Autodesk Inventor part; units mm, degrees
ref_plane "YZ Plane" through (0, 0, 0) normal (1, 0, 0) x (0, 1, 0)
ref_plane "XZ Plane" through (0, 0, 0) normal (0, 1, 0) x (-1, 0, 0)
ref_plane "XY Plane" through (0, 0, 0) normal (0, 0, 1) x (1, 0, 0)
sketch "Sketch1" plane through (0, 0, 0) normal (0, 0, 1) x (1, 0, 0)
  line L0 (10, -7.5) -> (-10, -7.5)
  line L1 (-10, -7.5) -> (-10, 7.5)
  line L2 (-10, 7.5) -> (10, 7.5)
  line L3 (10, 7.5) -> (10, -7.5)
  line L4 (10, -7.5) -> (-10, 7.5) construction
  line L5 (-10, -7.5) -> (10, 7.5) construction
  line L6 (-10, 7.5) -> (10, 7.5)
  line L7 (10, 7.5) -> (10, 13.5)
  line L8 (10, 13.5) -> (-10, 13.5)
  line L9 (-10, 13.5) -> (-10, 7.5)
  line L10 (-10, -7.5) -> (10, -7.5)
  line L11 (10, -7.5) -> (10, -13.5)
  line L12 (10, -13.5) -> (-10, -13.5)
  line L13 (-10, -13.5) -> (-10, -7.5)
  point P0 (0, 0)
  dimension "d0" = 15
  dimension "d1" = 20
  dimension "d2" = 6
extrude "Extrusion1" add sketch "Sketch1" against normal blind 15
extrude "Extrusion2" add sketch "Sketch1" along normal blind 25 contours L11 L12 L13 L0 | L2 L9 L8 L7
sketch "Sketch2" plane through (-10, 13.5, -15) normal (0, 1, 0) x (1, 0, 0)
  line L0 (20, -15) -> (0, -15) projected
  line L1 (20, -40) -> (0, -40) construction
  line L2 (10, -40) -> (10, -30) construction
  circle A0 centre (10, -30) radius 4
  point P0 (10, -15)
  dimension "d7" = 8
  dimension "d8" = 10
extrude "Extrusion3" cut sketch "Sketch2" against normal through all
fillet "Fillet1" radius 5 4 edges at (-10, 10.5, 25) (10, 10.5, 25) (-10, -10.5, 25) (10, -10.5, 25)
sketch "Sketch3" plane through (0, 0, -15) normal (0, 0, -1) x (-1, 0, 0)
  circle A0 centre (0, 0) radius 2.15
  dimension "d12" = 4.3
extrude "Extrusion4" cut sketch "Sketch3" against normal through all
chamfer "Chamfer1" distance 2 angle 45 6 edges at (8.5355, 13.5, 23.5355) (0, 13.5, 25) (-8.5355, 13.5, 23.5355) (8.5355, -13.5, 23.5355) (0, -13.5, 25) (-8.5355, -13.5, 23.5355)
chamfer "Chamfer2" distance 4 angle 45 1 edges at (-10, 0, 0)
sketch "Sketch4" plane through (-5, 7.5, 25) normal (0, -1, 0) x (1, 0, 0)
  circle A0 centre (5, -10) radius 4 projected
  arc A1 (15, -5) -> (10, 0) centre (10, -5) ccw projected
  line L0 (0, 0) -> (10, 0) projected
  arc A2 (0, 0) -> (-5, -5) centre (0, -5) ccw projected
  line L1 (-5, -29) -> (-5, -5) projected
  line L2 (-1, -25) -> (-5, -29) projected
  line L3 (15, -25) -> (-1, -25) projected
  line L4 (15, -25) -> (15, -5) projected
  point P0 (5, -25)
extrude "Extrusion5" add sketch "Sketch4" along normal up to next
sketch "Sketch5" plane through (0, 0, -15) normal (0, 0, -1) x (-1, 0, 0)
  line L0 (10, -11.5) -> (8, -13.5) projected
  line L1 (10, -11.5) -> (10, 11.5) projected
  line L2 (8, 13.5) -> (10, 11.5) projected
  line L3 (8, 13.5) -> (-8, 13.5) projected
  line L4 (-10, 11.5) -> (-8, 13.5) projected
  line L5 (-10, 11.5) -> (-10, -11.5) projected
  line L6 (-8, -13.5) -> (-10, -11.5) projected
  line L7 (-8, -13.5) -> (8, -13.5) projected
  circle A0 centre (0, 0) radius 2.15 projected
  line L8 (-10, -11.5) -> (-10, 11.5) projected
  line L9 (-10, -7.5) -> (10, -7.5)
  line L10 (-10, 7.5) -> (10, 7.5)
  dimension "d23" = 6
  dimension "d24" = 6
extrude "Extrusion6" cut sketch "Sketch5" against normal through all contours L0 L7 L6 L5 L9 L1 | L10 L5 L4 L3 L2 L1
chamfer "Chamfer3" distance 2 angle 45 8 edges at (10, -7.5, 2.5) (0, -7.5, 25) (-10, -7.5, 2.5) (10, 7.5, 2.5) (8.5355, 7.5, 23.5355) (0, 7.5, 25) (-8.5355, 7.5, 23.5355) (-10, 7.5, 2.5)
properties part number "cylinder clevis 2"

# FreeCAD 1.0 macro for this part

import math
import FreeCAD as App
import Part
import Sketcher
Q = App.Units.Quantity


def edges_at(feature, points):
    """Names of the edges that pass closest to the given points."""
    edges = feature.Shape.Edges
    near = lambda p: min(range(len(edges)), key=lambda i: edges[i].distToShape(Part.Vertex(*p))[0])
    return sorted({f"Edge{near(p) + 1}" for p in points})

doc = App.newDocument("Part")
params = doc.addObject("Spreadsheet::Sheet", "Params")
for row, (alias, value) in enumerate([
    ("sketch1_width", "20 mm"),
    ("sketch1_height", "27 mm"),
    ("pad1_length", "15 mm"),
    ("sketch2_width", "20 mm"),
    ("sketch2_height", "6 mm"),
    ("pad2_length", "25 mm"),
    ("sketch3_diameter", "8 mm"),
    ("fillet_radius", "5 mm"),
    ("sketch4_diameter", "4.3 mm"),
    ("chamfer_size", "2 mm"),
    ("chamfer2_size", "4 mm"),
    ("sketch5_diameter", "8 mm"),
    ("sketch5_radius", "5 mm"),
    ("sketch5_width", "10 mm"),
    ("sketch5_width2", "16 mm"),
    ("sketch5_height", "20 mm"),
    ("pad3_length", "15 mm"),
    ("sketch6_width", "20 mm"),
    ("sketch6_width2", "16 mm"),
    ("chamfer3_size", "2 mm"),
], start=1):
    params.set(f"A{row}", alias)
    params.set(f"B{row}", "=" + value)
    params.setAlias(f"B{row}", alias)

body = doc.addObject("PartDesign::Body", "Body")

sketch1 = body.newObject("Sketcher::SketchObject", "Sketch")
sketch1.AttachmentSupport = (doc.getObject("XY_Plane"), [""])
sketch1.MapMode = "FlatFace"
sketch1.addGeometry([
    Part.LineSegment(App.Vector(10, -14, 0), App.Vector(10, 14, 0)),
    Part.LineSegment(App.Vector(10, 14, 0), App.Vector(-10, 14, 0)),
    Part.LineSegment(App.Vector(-10, 14, 0), App.Vector(-10, -14, 0)),
    Part.LineSegment(App.Vector(-10, -14, 0), App.Vector(10, -14, 0)),
], False)
sketch1.addConstraint([
    Sketcher.Constraint("Coincident", 0, 2, 1, 1),
    Sketcher.Constraint("Coincident", 1, 2, 2, 1),
    Sketcher.Constraint("Coincident", 2, 2, 3, 1),
    Sketcher.Constraint("Coincident", 3, 2, 0, 1),
    Sketcher.Constraint("Vertical", 0),
    Sketcher.Constraint("Horizontal", 1),
    Sketcher.Constraint("Vertical", 2),
    Sketcher.Constraint("Horizontal", 3),
    Sketcher.Constraint("Symmetric", 0, 2, 2, 2, -1, 1),
    Sketcher.Constraint("DistanceX", 1, 2, 1, 1, Q("20 mm")),
    Sketcher.Constraint("DistanceY", 0, 1, 0, 2, Q("27 mm")),
])
sketch1.setExpression("Constraints[9]", "Params.sketch1_width")
sketch1.setExpression("Constraints[10]", "Params.sketch1_height")
pad1 = body.newObject("PartDesign::Pad", "Pad")
pad1.Profile = sketch1
pad1.setExpression("Length", "Params.pad1_length")
pad1.Reversed = True

sketch2 = body.newObject("Sketcher::SketchObject", "Sketch001")
sketch2.AttachmentSupport = (doc.getObject("XY_Plane"), [""])
sketch2.MapMode = "FlatFace"
sketch2.addGeometry([
    Part.LineSegment(App.Vector(10, -14, 0), App.Vector(10, -8, 0)),
    Part.LineSegment(App.Vector(10, -8, 0), App.Vector(-10, -8, 0)),
    Part.LineSegment(App.Vector(-10, -8, 0), App.Vector(-10, -14, 0)),
    Part.LineSegment(App.Vector(-10, -14, 0), App.Vector(10, -14, 0)),
    Part.LineSegment(App.Vector(-10, 8, 0), App.Vector(10, 8, 0)),
    Part.LineSegment(App.Vector(10, 8, 0), App.Vector(10, 14, 0)),
    Part.LineSegment(App.Vector(10, 14, 0), App.Vector(-10, 14, 0)),
    Part.LineSegment(App.Vector(-10, 14, 0), App.Vector(-10, 8, 0)),
], False)
sketch2.addConstraint([
    Sketcher.Constraint("Coincident", 0, 2, 1, 1),
    Sketcher.Constraint("Coincident", 1, 2, 2, 1),
    Sketcher.Constraint("Coincident", 2, 2, 3, 1),
    Sketcher.Constraint("Coincident", 3, 2, 0, 1),
    Sketcher.Constraint("Coincident", 4, 2, 5, 1),
    Sketcher.Constraint("Coincident", 5, 2, 6, 1),
    Sketcher.Constraint("Coincident", 6, 2, 7, 1),
    Sketcher.Constraint("Coincident", 7, 2, 4, 1),
    Sketcher.Constraint("Vertical", 0),
    Sketcher.Constraint("Horizontal", 1),
    Sketcher.Constraint("Vertical", 2),
    Sketcher.Constraint("Horizontal", 3),
    Sketcher.Constraint("Horizontal", 4),
    Sketcher.Constraint("Vertical", 5),
    Sketcher.Constraint("Horizontal", 6),
    Sketcher.Constraint("Vertical", 7),
    Sketcher.Constraint("Symmetric", 1, 2, 4, 2, -1, 1),
    Sketcher.Constraint("Symmetric", 3, 2, 6, 2, -1, 1),
    Sketcher.Constraint("Vertical", 3, 2, 4, 2),
    Sketcher.Constraint("DistanceX", 1, 2, 1, 1, Q("20 mm")),
    Sketcher.Constraint("DistanceY", 0, 1, 0, 2, Q("6 mm")),
    Sketcher.Constraint("DistanceY", 0, 2, 4, 2, Q("15 mm")),
])
sketch2.setExpression("Constraints[19]", "Params.sketch2_width")
sketch2.setExpression("Constraints[20]", "Params.sketch2_height")
pad2 = body.newObject("PartDesign::Pad", "Pad001")
pad2.Profile = sketch2
pad2.setExpression("Length", "Params.pad2_length")

sketch3 = body.newObject("Sketcher::SketchObject", "Sketch002")
sketch3.AttachmentSupport = (doc.getObject("XZ_Plane"), [""])
sketch3.MapMode = "FlatFace"
sketch3.AttachmentOffset = App.Placement(App.Vector(0, 0, -13.5), App.Rotation())
sketch3.addGeometry(Part.Circle(App.Vector(0, 15, 0), App.Vector(0, 0, 1), 4), False)
sketch3.addConstraint([
    Sketcher.Constraint("PointOnObject", 0, 3, -2),
    Sketcher.Constraint("Diameter", 0, Q("8 mm")),
    Sketcher.Constraint("DistanceY", -1, 1, 0, 3, Q("15 mm")),
])
sketch3.setExpression("Constraints[1]", "Params.sketch3_diameter")
pocket1 = body.newObject("PartDesign::Pocket", "Pocket")
pocket1.Profile = sketch3
pocket1.Type = "ThroughAll"
pocket1.Reversed = True
doc.recompute()

fillet = body.newObject("PartDesign::Fillet", "Fillet")
fillet.Base = (pocket1, edges_at(pocket1, [
    (-10, 10.5, 25),
    (10, 10.5, 25),
    (-10, -10.5, 25),
    (10, -10.5, 25),
]))
fillet.setExpression("Radius", "Params.fillet_radius")

sketch4 = body.newObject("Sketcher::SketchObject", "Sketch003")
sketch4.AttachmentSupport = (doc.getObject("XY_Plane"), [""])
sketch4.MapMode = "FlatFace"
sketch4.AttachmentOffset = App.Placement(App.Vector(0, 0, -15), App.Rotation())
sketch4.addGeometry(Part.Circle(App.Vector(0, 0, 0), App.Vector(0, 0, 1), 2.1), False)
sketch4.addConstraint([
    Sketcher.Constraint("Coincident", 0, 3, -1, 1),
    Sketcher.Constraint("Diameter", 0, Q("4.3 mm")),
])
sketch4.setExpression("Constraints[1]", "Params.sketch4_diameter")
pocket2 = body.newObject("PartDesign::Pocket", "Pocket001")
pocket2.Profile = sketch4
pocket2.Type = "ThroughAll"
pocket2.Reversed = True
doc.recompute()

chamfer = body.newObject("PartDesign::Chamfer", "Chamfer")
chamfer.Base = (pocket2, edges_at(pocket2, [
    (8.536, 13.5, 23.535),
    (0, 13.5, 25),
    (-8.536, 13.5, 23.535),
    (8.536, -13.5, 23.535),
    (0, -13.5, 25),
    (-8.536, -13.5, 23.535),
]))
chamfer.setExpression("Size", "Params.chamfer_size")
doc.recompute()

chamfer2 = body.newObject("PartDesign::Chamfer", "Chamfer001")
chamfer2.Base = (chamfer, edges_at(chamfer, [(-10, 0, 0)]))
chamfer2.setExpression("Size", "Params.chamfer2_size")

sketch5 = body.newObject("Sketcher::SketchObject", "Sketch004")
sketch5.AttachmentSupport = (doc.getObject("XZ_Plane"), [""])
sketch5.MapMode = "FlatFace"
sketch5.AttachmentOffset = App.Placement(App.Vector(0, 0, -7.5), App.Rotation())
sketch5.addGeometry([
    Part.LineSegment(App.Vector(10, 0, 0), App.Vector(10, 20, 0)),
    Part.ArcOfCircle(Part.Circle(App.Vector(5, 20, 0), App.Vector(0, 0, 1), 5), math.radians(0), math.radians(90)),
    Part.LineSegment(App.Vector(5, 25, 0), App.Vector(-5, 25, 0)),
    Part.ArcOfCircle(Part.Circle(App.Vector(-5, 20, 0), App.Vector(0, 0, 1), 5), math.radians(90), math.radians(180)),
    Part.LineSegment(App.Vector(-10, 20, 0), App.Vector(-10, -4, 0)),
    Part.LineSegment(App.Vector(-10, -4, 0), App.Vector(-6, 0, 0)),
    Part.LineSegment(App.Vector(-6, 0, 0), App.Vector(10, 0, 0)),
    Part.Circle(App.Vector(0, 15, 0), App.Vector(0, 0, 1), 4),
], False)
sketch5.addConstraint([
    Sketcher.Constraint("Tangent", 0, 2, 1, 1),
    Sketcher.Constraint("Tangent", 1, 2, 2, 1),
    Sketcher.Constraint("Tangent", 2, 2, 3, 1),
    Sketcher.Constraint("Tangent", 3, 2, 4, 1),
    Sketcher.Constraint("Coincident", 4, 2, 5, 1),
    Sketcher.Constraint("Coincident", 5, 2, 6, 1),
    Sketcher.Constraint("Coincident", 6, 2, 0, 1),
    Sketcher.Constraint("Vertical", 0),
    Sketcher.Constraint("Horizontal", 2),
    Sketcher.Constraint("Vertical", 4),
    Sketcher.Constraint("Horizontal", 6),
    Sketcher.Constraint("Equal", 1, 3),
    Sketcher.Constraint("PointOnObject", 7, 3, -2),
    Sketcher.Constraint("PointOnObject", 5, 2, -1),
    Sketcher.Constraint("Diameter", 7, Q("8 mm")),
    Sketcher.Constraint("Radius", 1, Q("5 mm")),
    Sketcher.Constraint("DistanceX", 2, 2, 2, 1, Q("10 mm")),
    Sketcher.Constraint("DistanceX", 6, 1, 6, 2, Q("16 mm")),
    Sketcher.Constraint("DistanceY", 0, 1, 0, 2, Q("20 mm")),
    Sketcher.Constraint("DistanceY", 4, 2, 4, 1, Q("24 mm")),
    Sketcher.Constraint("DistanceX", -1, 1, 1, 3, Q("5 mm")),
    Sketcher.Constraint("DistanceY", -1, 1, 7, 3, Q("15 mm")),
])
sketch5.setExpression("Constraints[14]", "Params.sketch5_diameter")
sketch5.setExpression("Constraints[15]", "Params.sketch5_radius")
sketch5.setExpression("Constraints[16]", "Params.sketch5_width")
sketch5.setExpression("Constraints[17]", "Params.sketch5_width2")
sketch5.setExpression("Constraints[18]", "Params.sketch5_height")
pad3 = body.newObject("PartDesign::Pad", "Pad002")
pad3.Profile = sketch5
pad3.setExpression("Length", "Params.pad3_length")

sketch6 = body.newObject("Sketcher::SketchObject", "Sketch005")
sketch6.AttachmentSupport = (doc.getObject("XY_Plane"), [""])
sketch6.MapMode = "FlatFace"
sketch6.AttachmentOffset = App.Placement(App.Vector(0, 0, -15), App.Rotation())
sketch6.addGeometry([
    Part.LineSegment(App.Vector(-8, -13.5, 0), App.Vector(-10, -11.5, 0)),
    Part.LineSegment(App.Vector(-10, -11.5, 0), App.Vector(-10, -7.5, 0)),
    Part.LineSegment(App.Vector(-10, -7.5, 0), App.Vector(10, -7.5, 0)),
    Part.LineSegment(App.Vector(10, -7.5, 0), App.Vector(10, -11.5, 0)),
    Part.LineSegment(App.Vector(10, -11.5, 0), App.Vector(8, -13.5, 0)),
    Part.LineSegment(App.Vector(8, -13.5, 0), App.Vector(-8, -13.5, 0)),
    Part.LineSegment(App.Vector(10, 7.5, 0), App.Vector(-10, 7.5, 0)),
    Part.LineSegment(App.Vector(-10, 7.5, 0), App.Vector(-10, 11.5, 0)),
    Part.LineSegment(App.Vector(-10, 11.5, 0), App.Vector(-8, 13.5, 0)),
    Part.LineSegment(App.Vector(-8, 13.5, 0), App.Vector(8, 13.5, 0)),
    Part.LineSegment(App.Vector(8, 13.5, 0), App.Vector(10, 11.5, 0)),
    Part.LineSegment(App.Vector(10, 11.5, 0), App.Vector(10, 7.5, 0)),
], False)
sketch6.addConstraint([
    Sketcher.Constraint("Coincident", 0, 2, 1, 1),
    Sketcher.Constraint("Coincident", 1, 2, 2, 1),
    Sketcher.Constraint("Coincident", 2, 2, 3, 1),
    Sketcher.Constraint("Coincident", 3, 2, 4, 1),
    Sketcher.Constraint("Coincident", 4, 2, 5, 1),
    Sketcher.Constraint("Coincident", 5, 2, 0, 1),
    Sketcher.Constraint("Coincident", 6, 2, 7, 1),
    Sketcher.Constraint("Coincident", 7, 2, 8, 1),
    Sketcher.Constraint("Coincident", 8, 2, 9, 1),
    Sketcher.Constraint("Coincident", 9, 2, 10, 1),
    Sketcher.Constraint("Coincident", 10, 2, 11, 1),
    Sketcher.Constraint("Coincident", 11, 2, 6, 1),
    Sketcher.Constraint("Vertical", 1),
    Sketcher.Constraint("Horizontal", 2),
    Sketcher.Constraint("Vertical", 3),
    Sketcher.Constraint("Horizontal", 5),
    Sketcher.Constraint("Horizontal", 6),
    Sketcher.Constraint("Vertical", 7),
    Sketcher.Constraint("Horizontal", 9),
    Sketcher.Constraint("Vertical", 11),
    Sketcher.Constraint("Symmetric", 2, 2, 6, 2, -1, 1),
    Sketcher.Constraint("Symmetric", 4, 2, 8, 2, -1, 1),
    Sketcher.Constraint("Symmetric", 0, 2, 10, 2, -1, 1),
    Sketcher.Constraint("Symmetric", 0, 2, 3, 2, -2),
    Sketcher.Constraint("Perpendicular", 0, 4),
    Sketcher.Constraint("Parallel", 4, 8),
    Sketcher.Constraint("Perpendicular", 8, 10),
    Sketcher.Constraint("Vertical", 5, 2, 8, 2),
    Sketcher.Constraint("DistanceY", 4, 2, 2, 2, Q("6 mm")),
    Sketcher.Constraint("DistanceX", 2, 1, 2, 2, Q("20 mm")),
    Sketcher.Constraint("DistanceX", 5, 2, 5, 1, Q("16 mm")),
    Sketcher.Constraint("DistanceY", 1, 2, 6, 2, Q("15 mm")),
])
sketch6.setExpression("Constraints[29]", "Params.sketch6_width")
sketch6.setExpression("Constraints[30]", "Params.sketch6_width2")
pocket3 = body.newObject("PartDesign::Pocket", "Pocket002")
pocket3.Profile = sketch6
pocket3.Type = "ThroughAll"
pocket3.Reversed = True
doc.recompute()

chamfer3 = body.newObject("PartDesign::Chamfer", "Chamfer002")
chamfer3.Base = (pocket3, edges_at(pocket3, [
    (10, -7.5, 2.5),
    (0, -7.5, 25),
    (-10, -7.5, 2.5),
    (10, 7.5, 2.5),
    (8.536, 7.5, 23.535),
    (0, 7.5, 25),
    (-8.536, 7.5, 23.535),
    (-10, 7.5, 2.5),
]))
chamfer3.setExpression("Size", "Params.chamfer3_size")

doc.recompute()
